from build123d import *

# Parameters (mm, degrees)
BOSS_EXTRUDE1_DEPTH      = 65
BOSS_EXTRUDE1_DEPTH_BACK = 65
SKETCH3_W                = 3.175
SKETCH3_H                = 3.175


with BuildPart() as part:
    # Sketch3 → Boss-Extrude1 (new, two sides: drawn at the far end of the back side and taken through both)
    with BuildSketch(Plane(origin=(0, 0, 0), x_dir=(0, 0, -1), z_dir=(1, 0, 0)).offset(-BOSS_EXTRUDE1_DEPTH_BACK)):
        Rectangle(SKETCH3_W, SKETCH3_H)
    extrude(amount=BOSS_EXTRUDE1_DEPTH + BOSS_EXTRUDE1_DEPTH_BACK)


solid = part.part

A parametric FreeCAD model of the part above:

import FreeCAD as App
import Part
import Sketcher
from FreeCAD import Vector
Q = App.Units.Quantity


def add_polygon(sketch, points):
    """Adds a closed chain of lines whose ends are joined by coincident constraints."""
    first, n = sketch.GeometryCount, len(points)
    for a, b in zip(points, points[1:] + points[:1]):
        sketch.addGeometry(Part.LineSegment(App.Vector(*a, 0), App.Vector(*b, 0)), False)
    for i in range(n):
        sketch.addConstraint(Sketcher.Constraint("Coincident", first + i, 2, first + (i + 1) % n, 1))

doc = App.newDocument("Part")
body = doc.addObject("PartDesign::Body", "Body")

sketch1 = body.newObject("Sketcher::SketchObject", "Sketch")
sketch1.AttachmentSupport = (doc.getObject("YZ_Plane"), [""])
sketch1.MapMode = "FlatFace"
add_polygon(sketch1, [(1.6, 1.6), (-1.6, 1.6), (-1.6, -1.6), (1.6, -1.6)])
sketch1.addConstraint(Sketcher.Constraint("Horizontal", 0))
sketch1.addConstraint(Sketcher.Constraint("Vertical", 1))
sketch1.addConstraint(Sketcher.Constraint("Horizontal", 2))
sketch1.addConstraint(Sketcher.Constraint("Vertical", 3))
sketch1.addConstraint(Sketcher.Constraint("Symmetric", 0, 2, 2, 2, -1, 1))
sketch1.addConstraint(Sketcher.Constraint("Equal", 2, 1))
sketch1.addConstraint(Sketcher.Constraint("DistanceX", 0, 2, 0, 1, Q("3.175 mm")))
pad1 = body.newObject("PartDesign::Pad", "Pad")
pad1.Profile = sketch1
pad1.Type = "TwoLengths"
pad1.Length = 65
pad1.Length2 = 65

doc.recompute()
